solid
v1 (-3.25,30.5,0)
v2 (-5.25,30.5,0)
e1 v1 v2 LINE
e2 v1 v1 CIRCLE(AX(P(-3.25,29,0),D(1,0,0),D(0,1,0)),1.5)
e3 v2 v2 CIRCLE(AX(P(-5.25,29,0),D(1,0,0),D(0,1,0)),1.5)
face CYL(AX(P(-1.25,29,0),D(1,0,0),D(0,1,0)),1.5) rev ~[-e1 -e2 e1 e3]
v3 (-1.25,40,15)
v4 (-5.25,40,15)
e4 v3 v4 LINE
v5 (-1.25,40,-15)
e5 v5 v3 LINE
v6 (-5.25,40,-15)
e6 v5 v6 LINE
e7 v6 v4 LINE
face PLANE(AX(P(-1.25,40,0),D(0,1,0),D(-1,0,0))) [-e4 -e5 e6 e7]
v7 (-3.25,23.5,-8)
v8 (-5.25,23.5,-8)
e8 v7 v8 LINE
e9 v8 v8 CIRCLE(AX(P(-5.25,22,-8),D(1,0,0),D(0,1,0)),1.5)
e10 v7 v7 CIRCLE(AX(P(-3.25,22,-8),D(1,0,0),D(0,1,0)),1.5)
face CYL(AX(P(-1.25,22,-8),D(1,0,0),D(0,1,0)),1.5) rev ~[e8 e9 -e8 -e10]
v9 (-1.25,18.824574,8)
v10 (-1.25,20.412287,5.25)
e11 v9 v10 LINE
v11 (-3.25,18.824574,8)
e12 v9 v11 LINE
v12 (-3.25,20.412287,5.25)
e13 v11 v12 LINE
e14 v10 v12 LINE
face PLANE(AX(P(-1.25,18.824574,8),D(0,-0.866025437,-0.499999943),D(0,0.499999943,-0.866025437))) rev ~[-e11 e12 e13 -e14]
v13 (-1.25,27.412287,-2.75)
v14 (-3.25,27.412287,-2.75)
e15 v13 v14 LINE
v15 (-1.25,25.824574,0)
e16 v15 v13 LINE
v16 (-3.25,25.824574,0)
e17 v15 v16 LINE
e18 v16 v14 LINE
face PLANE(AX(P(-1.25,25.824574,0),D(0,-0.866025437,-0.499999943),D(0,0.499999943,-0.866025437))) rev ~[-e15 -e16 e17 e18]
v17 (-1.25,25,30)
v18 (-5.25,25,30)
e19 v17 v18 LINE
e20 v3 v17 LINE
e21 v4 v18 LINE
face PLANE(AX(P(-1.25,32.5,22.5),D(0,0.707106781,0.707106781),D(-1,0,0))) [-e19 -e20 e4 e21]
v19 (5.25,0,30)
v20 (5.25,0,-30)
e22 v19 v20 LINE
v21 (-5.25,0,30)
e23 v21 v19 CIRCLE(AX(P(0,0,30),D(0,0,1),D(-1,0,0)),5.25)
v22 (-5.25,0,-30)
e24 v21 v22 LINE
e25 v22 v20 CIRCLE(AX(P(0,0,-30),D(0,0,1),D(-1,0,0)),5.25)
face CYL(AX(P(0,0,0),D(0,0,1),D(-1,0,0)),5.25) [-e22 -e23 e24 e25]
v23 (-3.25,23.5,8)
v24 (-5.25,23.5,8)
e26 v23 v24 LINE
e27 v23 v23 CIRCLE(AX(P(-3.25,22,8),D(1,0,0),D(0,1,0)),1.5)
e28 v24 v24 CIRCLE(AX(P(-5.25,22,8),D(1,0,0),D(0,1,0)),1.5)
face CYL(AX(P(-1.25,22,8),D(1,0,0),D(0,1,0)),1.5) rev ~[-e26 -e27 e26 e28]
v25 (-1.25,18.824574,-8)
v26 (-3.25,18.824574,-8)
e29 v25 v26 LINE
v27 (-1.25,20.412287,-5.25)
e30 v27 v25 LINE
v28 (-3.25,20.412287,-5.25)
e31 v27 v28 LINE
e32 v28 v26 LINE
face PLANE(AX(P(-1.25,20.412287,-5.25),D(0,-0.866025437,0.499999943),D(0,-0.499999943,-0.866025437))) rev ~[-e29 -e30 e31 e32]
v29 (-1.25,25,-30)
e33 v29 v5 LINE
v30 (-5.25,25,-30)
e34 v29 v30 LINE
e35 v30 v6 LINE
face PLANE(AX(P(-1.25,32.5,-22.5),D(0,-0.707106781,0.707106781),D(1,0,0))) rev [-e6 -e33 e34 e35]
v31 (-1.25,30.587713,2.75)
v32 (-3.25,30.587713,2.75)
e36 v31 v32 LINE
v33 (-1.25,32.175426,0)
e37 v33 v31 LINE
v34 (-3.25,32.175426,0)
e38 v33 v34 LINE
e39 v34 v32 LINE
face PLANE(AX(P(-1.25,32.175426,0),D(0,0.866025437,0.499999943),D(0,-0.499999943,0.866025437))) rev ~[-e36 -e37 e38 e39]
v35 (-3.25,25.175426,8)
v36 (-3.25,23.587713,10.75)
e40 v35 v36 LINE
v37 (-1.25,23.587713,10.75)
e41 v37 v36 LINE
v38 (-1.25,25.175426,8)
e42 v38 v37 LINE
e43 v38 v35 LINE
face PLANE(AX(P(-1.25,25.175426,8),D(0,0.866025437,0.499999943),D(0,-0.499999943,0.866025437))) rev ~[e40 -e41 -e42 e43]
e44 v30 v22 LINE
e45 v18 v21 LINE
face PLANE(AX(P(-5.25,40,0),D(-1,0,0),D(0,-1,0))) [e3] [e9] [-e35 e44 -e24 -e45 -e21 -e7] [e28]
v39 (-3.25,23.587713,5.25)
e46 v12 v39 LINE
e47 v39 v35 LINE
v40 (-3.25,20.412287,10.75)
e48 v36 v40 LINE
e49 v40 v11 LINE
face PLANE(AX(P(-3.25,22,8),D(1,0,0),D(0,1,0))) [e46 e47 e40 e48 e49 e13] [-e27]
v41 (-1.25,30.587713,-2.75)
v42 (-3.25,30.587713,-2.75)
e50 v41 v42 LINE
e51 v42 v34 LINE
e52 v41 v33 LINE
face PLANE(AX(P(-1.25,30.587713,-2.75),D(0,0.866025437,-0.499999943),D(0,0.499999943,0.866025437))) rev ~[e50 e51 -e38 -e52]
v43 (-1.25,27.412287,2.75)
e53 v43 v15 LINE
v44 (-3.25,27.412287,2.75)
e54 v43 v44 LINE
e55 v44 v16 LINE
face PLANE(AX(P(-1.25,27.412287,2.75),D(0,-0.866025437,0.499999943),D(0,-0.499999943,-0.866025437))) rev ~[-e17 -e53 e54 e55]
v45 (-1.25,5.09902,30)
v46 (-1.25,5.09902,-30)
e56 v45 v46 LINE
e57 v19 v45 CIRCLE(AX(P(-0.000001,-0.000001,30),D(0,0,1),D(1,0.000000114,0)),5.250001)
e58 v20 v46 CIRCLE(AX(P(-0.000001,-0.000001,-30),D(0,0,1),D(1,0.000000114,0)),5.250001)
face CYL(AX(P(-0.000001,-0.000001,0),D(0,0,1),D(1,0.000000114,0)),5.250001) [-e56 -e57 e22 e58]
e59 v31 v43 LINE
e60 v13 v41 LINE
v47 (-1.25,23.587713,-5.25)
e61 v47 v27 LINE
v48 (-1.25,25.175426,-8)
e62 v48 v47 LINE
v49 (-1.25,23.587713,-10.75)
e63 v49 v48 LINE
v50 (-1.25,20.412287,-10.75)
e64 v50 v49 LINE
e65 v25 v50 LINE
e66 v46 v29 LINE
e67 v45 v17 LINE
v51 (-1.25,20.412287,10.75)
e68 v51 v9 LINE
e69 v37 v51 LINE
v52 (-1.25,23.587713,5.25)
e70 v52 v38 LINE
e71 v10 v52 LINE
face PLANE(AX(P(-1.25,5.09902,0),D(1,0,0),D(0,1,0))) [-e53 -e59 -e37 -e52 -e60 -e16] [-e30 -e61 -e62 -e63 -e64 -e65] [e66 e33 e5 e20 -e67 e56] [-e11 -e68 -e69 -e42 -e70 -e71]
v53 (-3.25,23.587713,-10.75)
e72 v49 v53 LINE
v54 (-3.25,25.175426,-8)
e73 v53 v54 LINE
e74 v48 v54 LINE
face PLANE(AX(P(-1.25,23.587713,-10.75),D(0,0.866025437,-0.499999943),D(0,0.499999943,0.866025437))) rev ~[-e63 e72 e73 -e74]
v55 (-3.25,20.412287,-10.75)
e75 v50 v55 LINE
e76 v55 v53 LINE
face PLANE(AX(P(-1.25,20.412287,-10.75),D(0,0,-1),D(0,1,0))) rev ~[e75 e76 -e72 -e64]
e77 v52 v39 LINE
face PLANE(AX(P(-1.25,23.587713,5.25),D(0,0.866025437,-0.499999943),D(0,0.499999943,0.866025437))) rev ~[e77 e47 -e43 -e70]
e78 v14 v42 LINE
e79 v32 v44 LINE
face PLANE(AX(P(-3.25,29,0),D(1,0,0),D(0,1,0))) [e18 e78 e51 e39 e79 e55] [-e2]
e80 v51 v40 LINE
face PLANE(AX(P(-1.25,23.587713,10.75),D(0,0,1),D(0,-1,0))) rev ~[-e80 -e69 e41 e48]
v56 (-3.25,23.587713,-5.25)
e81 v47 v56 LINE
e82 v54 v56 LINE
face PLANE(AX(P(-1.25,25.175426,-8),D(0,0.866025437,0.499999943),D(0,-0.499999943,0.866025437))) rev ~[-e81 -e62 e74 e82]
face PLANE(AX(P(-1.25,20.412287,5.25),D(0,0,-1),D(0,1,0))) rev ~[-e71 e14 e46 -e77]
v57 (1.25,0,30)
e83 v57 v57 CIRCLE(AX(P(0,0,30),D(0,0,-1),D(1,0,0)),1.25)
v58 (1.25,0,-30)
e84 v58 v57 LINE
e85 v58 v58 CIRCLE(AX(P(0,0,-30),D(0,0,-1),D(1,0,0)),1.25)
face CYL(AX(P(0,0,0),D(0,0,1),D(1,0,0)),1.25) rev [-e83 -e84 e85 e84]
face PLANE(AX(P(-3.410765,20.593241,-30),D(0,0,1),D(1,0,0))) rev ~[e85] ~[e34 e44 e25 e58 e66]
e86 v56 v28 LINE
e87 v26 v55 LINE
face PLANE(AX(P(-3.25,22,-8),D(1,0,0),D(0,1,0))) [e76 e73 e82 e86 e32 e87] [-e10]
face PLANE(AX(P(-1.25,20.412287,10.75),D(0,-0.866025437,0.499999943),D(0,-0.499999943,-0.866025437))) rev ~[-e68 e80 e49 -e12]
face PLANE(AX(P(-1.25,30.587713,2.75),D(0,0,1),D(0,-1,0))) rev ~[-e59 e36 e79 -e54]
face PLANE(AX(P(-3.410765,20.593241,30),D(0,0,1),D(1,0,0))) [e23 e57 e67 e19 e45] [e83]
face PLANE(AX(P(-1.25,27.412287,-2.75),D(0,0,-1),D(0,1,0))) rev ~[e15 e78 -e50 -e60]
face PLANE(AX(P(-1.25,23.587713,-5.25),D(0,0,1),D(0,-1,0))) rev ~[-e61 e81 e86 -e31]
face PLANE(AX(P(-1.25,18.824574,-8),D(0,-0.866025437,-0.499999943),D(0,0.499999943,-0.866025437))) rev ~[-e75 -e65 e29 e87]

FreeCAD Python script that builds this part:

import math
import FreeCAD as App
import Part
import Sketcher

V = App.Vector
Q = App.Units.Quantity


def edges_at(feature, points):
    """Names of the edges that pass closest to the given points."""
    edges = feature.Shape.Edges
    near = lambda p: min(range(len(edges)), key=lambda i: edges[i].distToShape(Part.Vertex(*p))[0])
    return sorted({f"Edge{near(p) + 1}" for p in points})


def add_polygon(sketch, points):
    """Adds a closed chain of lines whose ends are joined by coincident constraints."""
    first, n = sketch.GeometryCount, len(points)
    for a, b in zip(points, points[1:] + points[:1]):
        sketch.addGeometry(Part.LineSegment(App.Vector(*a, 0), App.Vector(*b, 0)), False)
    for i in range(n):
        sketch.addConstraint(Sketcher.Constraint("Coincident", first + i, 2, first + (i + 1) % n, 1))

doc = App.newDocument("Part")
body = doc.addObject("PartDesign::Body", "Body")

# Sketch on XY plane
sketch1 = doc.addObject("Sketcher::SketchObject", "Sketch")
body.addObject(sketch1)
sketch1.AttachmentSupport = (doc.XY_Plane, [""])
sketch1.MapMode = "FlatFace"
sketch1.addGeometry(Part.LineSegment(V(-1.2, 5.1, 0), V(-1.2, 40, 0)), False)
sketch1.addGeometry(Part.LineSegment(V(-1.2, 40, 0), V(-5.2, 40, 0)), False)
sketch1.addGeometry(Part.LineSegment(V(-5.2, 40, 0), V(-5.2, 0, 0)), False)
sketch1.addGeometry(Part.ArcOfCircle(Part.Circle(V(0, 0, 0), V(0, 0, 1), 5.2), math.radians(180), math.radians(360)), False)
sketch1.addGeometry(Part.ArcOfCircle(Part.Circle(V(0, 0, 0), V(0, 0, 1), 5.3), math.radians(0), math.radians(104)), False)
sketch1.addGeometry(Part.Circle(V(0, 0, 0), V(0, 0, 1), 1.2), False)
sketch1.addConstraint(Sketcher.Constraint("Coincident", 0, 2, 1, 1))
sketch1.addConstraint(Sketcher.Constraint("Coincident", 1, 2, 2, 1))
sketch1.addConstraint(Sketcher.Constraint("Tangent", 2, 2, 3, 1))
sketch1.addConstraint(Sketcher.Constraint("Tangent", 3, 2, 4, 1))
sketch1.addConstraint(Sketcher.Constraint("Coincident", 4, 2, 0, 1))
sketch1.addConstraint(Sketcher.Constraint("Vertical", 0))
sketch1.addConstraint(Sketcher.Constraint("Horizontal", 1))
sketch1.addConstraint(Sketcher.Constraint("Vertical", 2))
sketch1.addConstraint(Sketcher.Constraint("Coincident", 3, 3, -1, 1))
sketch1.addConstraint(Sketcher.Constraint("Coincident", 5, 3, -1, 1))
sketch1.addConstraint(Sketcher.Constraint("Equal", 3, 4))
sketch1.addConstraint(Sketcher.Constraint("PointOnObject", 3, 2, -1))
sketch1.addConstraint(Sketcher.Constraint("Diameter", 5, 2.5))
sketch1.addConstraint(Sketcher.Constraint("DistanceX", 1, 2, 1, 1, 4.0))
sketch1.addConstraint(Sketcher.Constraint("DistanceY", 2, 2, 2, 1, 40.0))
sketch1.addConstraint(Sketcher.Constraint("Radius", 3, 5.25))
pad1 = doc.addObject("PartDesign::Pad", "Pad")
body.addObject(pad1)
pad1.Profile = sketch1
pad1.Length = 60
pad1.Midplane = True

# Sketch on YZ plane
sketch2 = doc.addObject("Sketcher::SketchObject", "Sketch001")
body.addObject(sketch2)
sketch2.AttachmentSupport = (doc.YZ_Plane, [""])
sketch2.MapMode = "FlatFace"
sketch2.AttachmentOffset = App.Placement(V(0, 0, -1.25), App.Rotation())
sketch2.addGeometry(Part.Circle(V(22, 8, 0), V(0, 0, 1), 1.5), False)
sketch2.addGeometry(Part.Circle(V(29, 0, 0), V(0, 0, 1), 1.5), False)
sketch2.addGeometry(Part.Circle(V(22, -8, 0), V(0, 0, 1), 1.5), False)
sketch2.addConstraint(Sketcher.Constraint("Equal", 0, 1))
sketch2.addConstraint(Sketcher.Constraint("Equal", 1, 2))
sketch2.addConstraint(Sketcher.Constraint("Symmetric", 0, 3, 2, 3, -1))
sketch2.addConstraint(Sketcher.Constraint("PointOnObject", 1, 3, -1))
sketch2.addConstraint(Sketcher.Constraint("Diameter", 0, 3.0))
sketch2.addConstraint(Sketcher.Constraint("DistanceX", -1, 1, 0, 3, 22.0))
sketch2.addConstraint(Sketcher.Constraint("DistanceY", -1, 1, 0, 3, 8.0))
sketch2.addConstraint(Sketcher.Constraint("DistanceX", -1, 1, 1, 3, 29.0))
pocket1 = doc.addObject("PartDesign::Pocket", "Pocket")
body.addObject(pocket1)
pocket1.Profile = sketch2
pocket1.Type = "ThroughAll"
doc.recompute()

chamfer = doc.addObject("PartDesign::Chamfer", "Chamfer")
body.addObject(chamfer)
chamfer.Base = (pocket1, edges_at(pocket1, [(-3.25, 40, 30), (-3.25, 40, -30)]))
chamfer.Size = 15

# Sketch on YZ plane
sketch3 = doc.addObject("Sketcher::SketchObject", "Sketch002")
body.addObject(sketch3)
sketch3.AttachmentSupport = (doc.YZ_Plane, [""])
sketch3.MapMode = "FlatFace"
sketch3.AttachmentOffset = App.Placement(V(0, 0, -1.25), App.Rotation())
add_polygon(sketch3, [(23.6, 10.8), (20.4, 10.8), (18.8, 8), (20.4, 5.2), (23.6, 5.2), (25.2, 8)])  # lines 0-5
sketch3.addGeometry(Part.Circle(V(22, 8, 0), V(0, 0, 1), 1.5), False)  # 6
add_polygon(sketch3, [(30.6, 2.8), (27.4, 2.8), (25.8, 0), (27.4, -2.8), (30.6, -2.8), (32.2, 0)])  # lines 7-12
sketch3.addGeometry(Part.Circle(V(29, 0, 0), V(0, 0, 1), 1.5), False)  # 13
add_polygon(sketch3, [(23.6, -5.2), (20.4, -5.2), (18.8, -8), (20.4, -10.8), (23.6, -10.8), (25.2, -8)])  # lines 14-19
sketch3.addGeometry(Part.Circle(V(22, -8, 0), V(0, 0, 1), 1.5), False)  # 20
sketch3.addConstraint(Sketcher.Constraint("Horizontal", 0))
sketch3.addConstraint(Sketcher.Constraint("Horizontal", 3))
sketch3.addConstraint(Sketcher.Constraint("Horizontal", 7))
sketch3.addConstraint(Sketcher.Constraint("Horizontal", 10))
sketch3.addConstraint(Sketcher.Constraint("Horizontal", 14))
sketch3.addConstraint(Sketcher.Constraint("Horizontal", 17))
sketch3.addConstraint(Sketcher.Constraint("Equal", 6, 13))
sketch3.addConstraint(Sketcher.Constraint("Equal", 13, 20))
sketch3.addConstraint(Sketcher.Constraint("Symmetric", 6, 3, 20, 3, -1))
sketch3.addConstraint(Sketcher.Constraint("Symmetric", 7, 2, 9, 2, -1))
sketch3.addConstraint(Sketcher.Constraint("Symmetric", 2, 2, 14, 2, -1))
sketch3.addConstraint(Sketcher.Constraint("Symmetric", 1, 2, 15, 2, -1))
sketch3.addConstraint(Sketcher.Constraint("Symmetric", 0, 2, 16, 2, -1))
sketch3.addConstraint(Sketcher.Constraint("Symmetric", 4, 2, 18, 2, -1))
sketch3.addConstraint(Sketcher.Constraint("PointOnObject", 13, 3, -1))
sketch3.addConstraint(Sketcher.Constraint("PointOnObject", 8, 2, -1))
sketch3.addConstraint(Sketcher.Constraint("PointOnObject", 11, 2, -1))
sketch3.addConstraint(Sketcher.Constraint("Parallel", 1, 4))
sketch3.addConstraint(Sketcher.Constraint("Parallel", 2, 5))
sketch3.addConstraint(Sketcher.Constraint("Parallel", 4, 8))
sketch3.addConstraint(Sketcher.Constraint("Parallel", 5, 9))
sketch3.addConstraint(Sketcher.Constraint("Parallel", 8, 11))
sketch3.addConstraint(Sketcher.Constraint("Parallel", 9, 12))
sketch3.addConstraint(Sketcher.Constraint("Parallel", 15, 18))
sketch3.addConstraint(Sketcher.Constraint("Parallel", 16, 19))
sketch3.addConstraint(Sketcher.Constraint("Horizontal", 6, 3, 1, 2))
sketch3.addConstraint(Sketcher.Constraint("Horizontal", 1, 2, 4, 2))
sketch3.addConstraint(Sketcher.Constraint("Vertical", 0, 2, 2, 2))
sketch3.addConstraint(Sketcher.Constraint("Equal", 3, 7))
sketch3.addConstraint(Sketcher.Constraint("Equal", 5, 8))
sketch3.addConstraint(Sketcher.Constraint("Diameter", 6, 3.0))
sketch3.addConstraint(Sketcher.Constraint("Angle", 1, Q("-119.999996 deg")))
sketch3.addConstraint(Sketcher.Constraint("DistanceX", -1, 1, 6, 3, 22.0))
sketch3.addConstraint(Sketcher.Constraint("DistanceY", -1, 1, 6, 3, 8.0))
sketch3.addConstraint(Sketcher.Constraint("DistanceX", -1, 1, 13, 3, 29.0))
sketch3.addConstraint(Sketcher.Constraint("DistanceX", 2, 2, 7, 2, 7.0))
sketch3.addConstraint(Sketcher.Constraint("DistanceY", 2, 2, 0, 2, 5.5))
sketch3.addConstraint(Sketcher.Constraint("DistanceX", 0, 2, 0, 1, 3.175426))
sketch3.addConstraint(Sketcher.Constraint("DistanceX", -1, 1, 0, 2, 20.412287))
pocket2 = doc.addObject("PartDesign::Pocket", "Pocket001")
body.addObject(pocket2)
pocket2.Profile = sketch3
pocket2.Length = 2

doc.recompute()
